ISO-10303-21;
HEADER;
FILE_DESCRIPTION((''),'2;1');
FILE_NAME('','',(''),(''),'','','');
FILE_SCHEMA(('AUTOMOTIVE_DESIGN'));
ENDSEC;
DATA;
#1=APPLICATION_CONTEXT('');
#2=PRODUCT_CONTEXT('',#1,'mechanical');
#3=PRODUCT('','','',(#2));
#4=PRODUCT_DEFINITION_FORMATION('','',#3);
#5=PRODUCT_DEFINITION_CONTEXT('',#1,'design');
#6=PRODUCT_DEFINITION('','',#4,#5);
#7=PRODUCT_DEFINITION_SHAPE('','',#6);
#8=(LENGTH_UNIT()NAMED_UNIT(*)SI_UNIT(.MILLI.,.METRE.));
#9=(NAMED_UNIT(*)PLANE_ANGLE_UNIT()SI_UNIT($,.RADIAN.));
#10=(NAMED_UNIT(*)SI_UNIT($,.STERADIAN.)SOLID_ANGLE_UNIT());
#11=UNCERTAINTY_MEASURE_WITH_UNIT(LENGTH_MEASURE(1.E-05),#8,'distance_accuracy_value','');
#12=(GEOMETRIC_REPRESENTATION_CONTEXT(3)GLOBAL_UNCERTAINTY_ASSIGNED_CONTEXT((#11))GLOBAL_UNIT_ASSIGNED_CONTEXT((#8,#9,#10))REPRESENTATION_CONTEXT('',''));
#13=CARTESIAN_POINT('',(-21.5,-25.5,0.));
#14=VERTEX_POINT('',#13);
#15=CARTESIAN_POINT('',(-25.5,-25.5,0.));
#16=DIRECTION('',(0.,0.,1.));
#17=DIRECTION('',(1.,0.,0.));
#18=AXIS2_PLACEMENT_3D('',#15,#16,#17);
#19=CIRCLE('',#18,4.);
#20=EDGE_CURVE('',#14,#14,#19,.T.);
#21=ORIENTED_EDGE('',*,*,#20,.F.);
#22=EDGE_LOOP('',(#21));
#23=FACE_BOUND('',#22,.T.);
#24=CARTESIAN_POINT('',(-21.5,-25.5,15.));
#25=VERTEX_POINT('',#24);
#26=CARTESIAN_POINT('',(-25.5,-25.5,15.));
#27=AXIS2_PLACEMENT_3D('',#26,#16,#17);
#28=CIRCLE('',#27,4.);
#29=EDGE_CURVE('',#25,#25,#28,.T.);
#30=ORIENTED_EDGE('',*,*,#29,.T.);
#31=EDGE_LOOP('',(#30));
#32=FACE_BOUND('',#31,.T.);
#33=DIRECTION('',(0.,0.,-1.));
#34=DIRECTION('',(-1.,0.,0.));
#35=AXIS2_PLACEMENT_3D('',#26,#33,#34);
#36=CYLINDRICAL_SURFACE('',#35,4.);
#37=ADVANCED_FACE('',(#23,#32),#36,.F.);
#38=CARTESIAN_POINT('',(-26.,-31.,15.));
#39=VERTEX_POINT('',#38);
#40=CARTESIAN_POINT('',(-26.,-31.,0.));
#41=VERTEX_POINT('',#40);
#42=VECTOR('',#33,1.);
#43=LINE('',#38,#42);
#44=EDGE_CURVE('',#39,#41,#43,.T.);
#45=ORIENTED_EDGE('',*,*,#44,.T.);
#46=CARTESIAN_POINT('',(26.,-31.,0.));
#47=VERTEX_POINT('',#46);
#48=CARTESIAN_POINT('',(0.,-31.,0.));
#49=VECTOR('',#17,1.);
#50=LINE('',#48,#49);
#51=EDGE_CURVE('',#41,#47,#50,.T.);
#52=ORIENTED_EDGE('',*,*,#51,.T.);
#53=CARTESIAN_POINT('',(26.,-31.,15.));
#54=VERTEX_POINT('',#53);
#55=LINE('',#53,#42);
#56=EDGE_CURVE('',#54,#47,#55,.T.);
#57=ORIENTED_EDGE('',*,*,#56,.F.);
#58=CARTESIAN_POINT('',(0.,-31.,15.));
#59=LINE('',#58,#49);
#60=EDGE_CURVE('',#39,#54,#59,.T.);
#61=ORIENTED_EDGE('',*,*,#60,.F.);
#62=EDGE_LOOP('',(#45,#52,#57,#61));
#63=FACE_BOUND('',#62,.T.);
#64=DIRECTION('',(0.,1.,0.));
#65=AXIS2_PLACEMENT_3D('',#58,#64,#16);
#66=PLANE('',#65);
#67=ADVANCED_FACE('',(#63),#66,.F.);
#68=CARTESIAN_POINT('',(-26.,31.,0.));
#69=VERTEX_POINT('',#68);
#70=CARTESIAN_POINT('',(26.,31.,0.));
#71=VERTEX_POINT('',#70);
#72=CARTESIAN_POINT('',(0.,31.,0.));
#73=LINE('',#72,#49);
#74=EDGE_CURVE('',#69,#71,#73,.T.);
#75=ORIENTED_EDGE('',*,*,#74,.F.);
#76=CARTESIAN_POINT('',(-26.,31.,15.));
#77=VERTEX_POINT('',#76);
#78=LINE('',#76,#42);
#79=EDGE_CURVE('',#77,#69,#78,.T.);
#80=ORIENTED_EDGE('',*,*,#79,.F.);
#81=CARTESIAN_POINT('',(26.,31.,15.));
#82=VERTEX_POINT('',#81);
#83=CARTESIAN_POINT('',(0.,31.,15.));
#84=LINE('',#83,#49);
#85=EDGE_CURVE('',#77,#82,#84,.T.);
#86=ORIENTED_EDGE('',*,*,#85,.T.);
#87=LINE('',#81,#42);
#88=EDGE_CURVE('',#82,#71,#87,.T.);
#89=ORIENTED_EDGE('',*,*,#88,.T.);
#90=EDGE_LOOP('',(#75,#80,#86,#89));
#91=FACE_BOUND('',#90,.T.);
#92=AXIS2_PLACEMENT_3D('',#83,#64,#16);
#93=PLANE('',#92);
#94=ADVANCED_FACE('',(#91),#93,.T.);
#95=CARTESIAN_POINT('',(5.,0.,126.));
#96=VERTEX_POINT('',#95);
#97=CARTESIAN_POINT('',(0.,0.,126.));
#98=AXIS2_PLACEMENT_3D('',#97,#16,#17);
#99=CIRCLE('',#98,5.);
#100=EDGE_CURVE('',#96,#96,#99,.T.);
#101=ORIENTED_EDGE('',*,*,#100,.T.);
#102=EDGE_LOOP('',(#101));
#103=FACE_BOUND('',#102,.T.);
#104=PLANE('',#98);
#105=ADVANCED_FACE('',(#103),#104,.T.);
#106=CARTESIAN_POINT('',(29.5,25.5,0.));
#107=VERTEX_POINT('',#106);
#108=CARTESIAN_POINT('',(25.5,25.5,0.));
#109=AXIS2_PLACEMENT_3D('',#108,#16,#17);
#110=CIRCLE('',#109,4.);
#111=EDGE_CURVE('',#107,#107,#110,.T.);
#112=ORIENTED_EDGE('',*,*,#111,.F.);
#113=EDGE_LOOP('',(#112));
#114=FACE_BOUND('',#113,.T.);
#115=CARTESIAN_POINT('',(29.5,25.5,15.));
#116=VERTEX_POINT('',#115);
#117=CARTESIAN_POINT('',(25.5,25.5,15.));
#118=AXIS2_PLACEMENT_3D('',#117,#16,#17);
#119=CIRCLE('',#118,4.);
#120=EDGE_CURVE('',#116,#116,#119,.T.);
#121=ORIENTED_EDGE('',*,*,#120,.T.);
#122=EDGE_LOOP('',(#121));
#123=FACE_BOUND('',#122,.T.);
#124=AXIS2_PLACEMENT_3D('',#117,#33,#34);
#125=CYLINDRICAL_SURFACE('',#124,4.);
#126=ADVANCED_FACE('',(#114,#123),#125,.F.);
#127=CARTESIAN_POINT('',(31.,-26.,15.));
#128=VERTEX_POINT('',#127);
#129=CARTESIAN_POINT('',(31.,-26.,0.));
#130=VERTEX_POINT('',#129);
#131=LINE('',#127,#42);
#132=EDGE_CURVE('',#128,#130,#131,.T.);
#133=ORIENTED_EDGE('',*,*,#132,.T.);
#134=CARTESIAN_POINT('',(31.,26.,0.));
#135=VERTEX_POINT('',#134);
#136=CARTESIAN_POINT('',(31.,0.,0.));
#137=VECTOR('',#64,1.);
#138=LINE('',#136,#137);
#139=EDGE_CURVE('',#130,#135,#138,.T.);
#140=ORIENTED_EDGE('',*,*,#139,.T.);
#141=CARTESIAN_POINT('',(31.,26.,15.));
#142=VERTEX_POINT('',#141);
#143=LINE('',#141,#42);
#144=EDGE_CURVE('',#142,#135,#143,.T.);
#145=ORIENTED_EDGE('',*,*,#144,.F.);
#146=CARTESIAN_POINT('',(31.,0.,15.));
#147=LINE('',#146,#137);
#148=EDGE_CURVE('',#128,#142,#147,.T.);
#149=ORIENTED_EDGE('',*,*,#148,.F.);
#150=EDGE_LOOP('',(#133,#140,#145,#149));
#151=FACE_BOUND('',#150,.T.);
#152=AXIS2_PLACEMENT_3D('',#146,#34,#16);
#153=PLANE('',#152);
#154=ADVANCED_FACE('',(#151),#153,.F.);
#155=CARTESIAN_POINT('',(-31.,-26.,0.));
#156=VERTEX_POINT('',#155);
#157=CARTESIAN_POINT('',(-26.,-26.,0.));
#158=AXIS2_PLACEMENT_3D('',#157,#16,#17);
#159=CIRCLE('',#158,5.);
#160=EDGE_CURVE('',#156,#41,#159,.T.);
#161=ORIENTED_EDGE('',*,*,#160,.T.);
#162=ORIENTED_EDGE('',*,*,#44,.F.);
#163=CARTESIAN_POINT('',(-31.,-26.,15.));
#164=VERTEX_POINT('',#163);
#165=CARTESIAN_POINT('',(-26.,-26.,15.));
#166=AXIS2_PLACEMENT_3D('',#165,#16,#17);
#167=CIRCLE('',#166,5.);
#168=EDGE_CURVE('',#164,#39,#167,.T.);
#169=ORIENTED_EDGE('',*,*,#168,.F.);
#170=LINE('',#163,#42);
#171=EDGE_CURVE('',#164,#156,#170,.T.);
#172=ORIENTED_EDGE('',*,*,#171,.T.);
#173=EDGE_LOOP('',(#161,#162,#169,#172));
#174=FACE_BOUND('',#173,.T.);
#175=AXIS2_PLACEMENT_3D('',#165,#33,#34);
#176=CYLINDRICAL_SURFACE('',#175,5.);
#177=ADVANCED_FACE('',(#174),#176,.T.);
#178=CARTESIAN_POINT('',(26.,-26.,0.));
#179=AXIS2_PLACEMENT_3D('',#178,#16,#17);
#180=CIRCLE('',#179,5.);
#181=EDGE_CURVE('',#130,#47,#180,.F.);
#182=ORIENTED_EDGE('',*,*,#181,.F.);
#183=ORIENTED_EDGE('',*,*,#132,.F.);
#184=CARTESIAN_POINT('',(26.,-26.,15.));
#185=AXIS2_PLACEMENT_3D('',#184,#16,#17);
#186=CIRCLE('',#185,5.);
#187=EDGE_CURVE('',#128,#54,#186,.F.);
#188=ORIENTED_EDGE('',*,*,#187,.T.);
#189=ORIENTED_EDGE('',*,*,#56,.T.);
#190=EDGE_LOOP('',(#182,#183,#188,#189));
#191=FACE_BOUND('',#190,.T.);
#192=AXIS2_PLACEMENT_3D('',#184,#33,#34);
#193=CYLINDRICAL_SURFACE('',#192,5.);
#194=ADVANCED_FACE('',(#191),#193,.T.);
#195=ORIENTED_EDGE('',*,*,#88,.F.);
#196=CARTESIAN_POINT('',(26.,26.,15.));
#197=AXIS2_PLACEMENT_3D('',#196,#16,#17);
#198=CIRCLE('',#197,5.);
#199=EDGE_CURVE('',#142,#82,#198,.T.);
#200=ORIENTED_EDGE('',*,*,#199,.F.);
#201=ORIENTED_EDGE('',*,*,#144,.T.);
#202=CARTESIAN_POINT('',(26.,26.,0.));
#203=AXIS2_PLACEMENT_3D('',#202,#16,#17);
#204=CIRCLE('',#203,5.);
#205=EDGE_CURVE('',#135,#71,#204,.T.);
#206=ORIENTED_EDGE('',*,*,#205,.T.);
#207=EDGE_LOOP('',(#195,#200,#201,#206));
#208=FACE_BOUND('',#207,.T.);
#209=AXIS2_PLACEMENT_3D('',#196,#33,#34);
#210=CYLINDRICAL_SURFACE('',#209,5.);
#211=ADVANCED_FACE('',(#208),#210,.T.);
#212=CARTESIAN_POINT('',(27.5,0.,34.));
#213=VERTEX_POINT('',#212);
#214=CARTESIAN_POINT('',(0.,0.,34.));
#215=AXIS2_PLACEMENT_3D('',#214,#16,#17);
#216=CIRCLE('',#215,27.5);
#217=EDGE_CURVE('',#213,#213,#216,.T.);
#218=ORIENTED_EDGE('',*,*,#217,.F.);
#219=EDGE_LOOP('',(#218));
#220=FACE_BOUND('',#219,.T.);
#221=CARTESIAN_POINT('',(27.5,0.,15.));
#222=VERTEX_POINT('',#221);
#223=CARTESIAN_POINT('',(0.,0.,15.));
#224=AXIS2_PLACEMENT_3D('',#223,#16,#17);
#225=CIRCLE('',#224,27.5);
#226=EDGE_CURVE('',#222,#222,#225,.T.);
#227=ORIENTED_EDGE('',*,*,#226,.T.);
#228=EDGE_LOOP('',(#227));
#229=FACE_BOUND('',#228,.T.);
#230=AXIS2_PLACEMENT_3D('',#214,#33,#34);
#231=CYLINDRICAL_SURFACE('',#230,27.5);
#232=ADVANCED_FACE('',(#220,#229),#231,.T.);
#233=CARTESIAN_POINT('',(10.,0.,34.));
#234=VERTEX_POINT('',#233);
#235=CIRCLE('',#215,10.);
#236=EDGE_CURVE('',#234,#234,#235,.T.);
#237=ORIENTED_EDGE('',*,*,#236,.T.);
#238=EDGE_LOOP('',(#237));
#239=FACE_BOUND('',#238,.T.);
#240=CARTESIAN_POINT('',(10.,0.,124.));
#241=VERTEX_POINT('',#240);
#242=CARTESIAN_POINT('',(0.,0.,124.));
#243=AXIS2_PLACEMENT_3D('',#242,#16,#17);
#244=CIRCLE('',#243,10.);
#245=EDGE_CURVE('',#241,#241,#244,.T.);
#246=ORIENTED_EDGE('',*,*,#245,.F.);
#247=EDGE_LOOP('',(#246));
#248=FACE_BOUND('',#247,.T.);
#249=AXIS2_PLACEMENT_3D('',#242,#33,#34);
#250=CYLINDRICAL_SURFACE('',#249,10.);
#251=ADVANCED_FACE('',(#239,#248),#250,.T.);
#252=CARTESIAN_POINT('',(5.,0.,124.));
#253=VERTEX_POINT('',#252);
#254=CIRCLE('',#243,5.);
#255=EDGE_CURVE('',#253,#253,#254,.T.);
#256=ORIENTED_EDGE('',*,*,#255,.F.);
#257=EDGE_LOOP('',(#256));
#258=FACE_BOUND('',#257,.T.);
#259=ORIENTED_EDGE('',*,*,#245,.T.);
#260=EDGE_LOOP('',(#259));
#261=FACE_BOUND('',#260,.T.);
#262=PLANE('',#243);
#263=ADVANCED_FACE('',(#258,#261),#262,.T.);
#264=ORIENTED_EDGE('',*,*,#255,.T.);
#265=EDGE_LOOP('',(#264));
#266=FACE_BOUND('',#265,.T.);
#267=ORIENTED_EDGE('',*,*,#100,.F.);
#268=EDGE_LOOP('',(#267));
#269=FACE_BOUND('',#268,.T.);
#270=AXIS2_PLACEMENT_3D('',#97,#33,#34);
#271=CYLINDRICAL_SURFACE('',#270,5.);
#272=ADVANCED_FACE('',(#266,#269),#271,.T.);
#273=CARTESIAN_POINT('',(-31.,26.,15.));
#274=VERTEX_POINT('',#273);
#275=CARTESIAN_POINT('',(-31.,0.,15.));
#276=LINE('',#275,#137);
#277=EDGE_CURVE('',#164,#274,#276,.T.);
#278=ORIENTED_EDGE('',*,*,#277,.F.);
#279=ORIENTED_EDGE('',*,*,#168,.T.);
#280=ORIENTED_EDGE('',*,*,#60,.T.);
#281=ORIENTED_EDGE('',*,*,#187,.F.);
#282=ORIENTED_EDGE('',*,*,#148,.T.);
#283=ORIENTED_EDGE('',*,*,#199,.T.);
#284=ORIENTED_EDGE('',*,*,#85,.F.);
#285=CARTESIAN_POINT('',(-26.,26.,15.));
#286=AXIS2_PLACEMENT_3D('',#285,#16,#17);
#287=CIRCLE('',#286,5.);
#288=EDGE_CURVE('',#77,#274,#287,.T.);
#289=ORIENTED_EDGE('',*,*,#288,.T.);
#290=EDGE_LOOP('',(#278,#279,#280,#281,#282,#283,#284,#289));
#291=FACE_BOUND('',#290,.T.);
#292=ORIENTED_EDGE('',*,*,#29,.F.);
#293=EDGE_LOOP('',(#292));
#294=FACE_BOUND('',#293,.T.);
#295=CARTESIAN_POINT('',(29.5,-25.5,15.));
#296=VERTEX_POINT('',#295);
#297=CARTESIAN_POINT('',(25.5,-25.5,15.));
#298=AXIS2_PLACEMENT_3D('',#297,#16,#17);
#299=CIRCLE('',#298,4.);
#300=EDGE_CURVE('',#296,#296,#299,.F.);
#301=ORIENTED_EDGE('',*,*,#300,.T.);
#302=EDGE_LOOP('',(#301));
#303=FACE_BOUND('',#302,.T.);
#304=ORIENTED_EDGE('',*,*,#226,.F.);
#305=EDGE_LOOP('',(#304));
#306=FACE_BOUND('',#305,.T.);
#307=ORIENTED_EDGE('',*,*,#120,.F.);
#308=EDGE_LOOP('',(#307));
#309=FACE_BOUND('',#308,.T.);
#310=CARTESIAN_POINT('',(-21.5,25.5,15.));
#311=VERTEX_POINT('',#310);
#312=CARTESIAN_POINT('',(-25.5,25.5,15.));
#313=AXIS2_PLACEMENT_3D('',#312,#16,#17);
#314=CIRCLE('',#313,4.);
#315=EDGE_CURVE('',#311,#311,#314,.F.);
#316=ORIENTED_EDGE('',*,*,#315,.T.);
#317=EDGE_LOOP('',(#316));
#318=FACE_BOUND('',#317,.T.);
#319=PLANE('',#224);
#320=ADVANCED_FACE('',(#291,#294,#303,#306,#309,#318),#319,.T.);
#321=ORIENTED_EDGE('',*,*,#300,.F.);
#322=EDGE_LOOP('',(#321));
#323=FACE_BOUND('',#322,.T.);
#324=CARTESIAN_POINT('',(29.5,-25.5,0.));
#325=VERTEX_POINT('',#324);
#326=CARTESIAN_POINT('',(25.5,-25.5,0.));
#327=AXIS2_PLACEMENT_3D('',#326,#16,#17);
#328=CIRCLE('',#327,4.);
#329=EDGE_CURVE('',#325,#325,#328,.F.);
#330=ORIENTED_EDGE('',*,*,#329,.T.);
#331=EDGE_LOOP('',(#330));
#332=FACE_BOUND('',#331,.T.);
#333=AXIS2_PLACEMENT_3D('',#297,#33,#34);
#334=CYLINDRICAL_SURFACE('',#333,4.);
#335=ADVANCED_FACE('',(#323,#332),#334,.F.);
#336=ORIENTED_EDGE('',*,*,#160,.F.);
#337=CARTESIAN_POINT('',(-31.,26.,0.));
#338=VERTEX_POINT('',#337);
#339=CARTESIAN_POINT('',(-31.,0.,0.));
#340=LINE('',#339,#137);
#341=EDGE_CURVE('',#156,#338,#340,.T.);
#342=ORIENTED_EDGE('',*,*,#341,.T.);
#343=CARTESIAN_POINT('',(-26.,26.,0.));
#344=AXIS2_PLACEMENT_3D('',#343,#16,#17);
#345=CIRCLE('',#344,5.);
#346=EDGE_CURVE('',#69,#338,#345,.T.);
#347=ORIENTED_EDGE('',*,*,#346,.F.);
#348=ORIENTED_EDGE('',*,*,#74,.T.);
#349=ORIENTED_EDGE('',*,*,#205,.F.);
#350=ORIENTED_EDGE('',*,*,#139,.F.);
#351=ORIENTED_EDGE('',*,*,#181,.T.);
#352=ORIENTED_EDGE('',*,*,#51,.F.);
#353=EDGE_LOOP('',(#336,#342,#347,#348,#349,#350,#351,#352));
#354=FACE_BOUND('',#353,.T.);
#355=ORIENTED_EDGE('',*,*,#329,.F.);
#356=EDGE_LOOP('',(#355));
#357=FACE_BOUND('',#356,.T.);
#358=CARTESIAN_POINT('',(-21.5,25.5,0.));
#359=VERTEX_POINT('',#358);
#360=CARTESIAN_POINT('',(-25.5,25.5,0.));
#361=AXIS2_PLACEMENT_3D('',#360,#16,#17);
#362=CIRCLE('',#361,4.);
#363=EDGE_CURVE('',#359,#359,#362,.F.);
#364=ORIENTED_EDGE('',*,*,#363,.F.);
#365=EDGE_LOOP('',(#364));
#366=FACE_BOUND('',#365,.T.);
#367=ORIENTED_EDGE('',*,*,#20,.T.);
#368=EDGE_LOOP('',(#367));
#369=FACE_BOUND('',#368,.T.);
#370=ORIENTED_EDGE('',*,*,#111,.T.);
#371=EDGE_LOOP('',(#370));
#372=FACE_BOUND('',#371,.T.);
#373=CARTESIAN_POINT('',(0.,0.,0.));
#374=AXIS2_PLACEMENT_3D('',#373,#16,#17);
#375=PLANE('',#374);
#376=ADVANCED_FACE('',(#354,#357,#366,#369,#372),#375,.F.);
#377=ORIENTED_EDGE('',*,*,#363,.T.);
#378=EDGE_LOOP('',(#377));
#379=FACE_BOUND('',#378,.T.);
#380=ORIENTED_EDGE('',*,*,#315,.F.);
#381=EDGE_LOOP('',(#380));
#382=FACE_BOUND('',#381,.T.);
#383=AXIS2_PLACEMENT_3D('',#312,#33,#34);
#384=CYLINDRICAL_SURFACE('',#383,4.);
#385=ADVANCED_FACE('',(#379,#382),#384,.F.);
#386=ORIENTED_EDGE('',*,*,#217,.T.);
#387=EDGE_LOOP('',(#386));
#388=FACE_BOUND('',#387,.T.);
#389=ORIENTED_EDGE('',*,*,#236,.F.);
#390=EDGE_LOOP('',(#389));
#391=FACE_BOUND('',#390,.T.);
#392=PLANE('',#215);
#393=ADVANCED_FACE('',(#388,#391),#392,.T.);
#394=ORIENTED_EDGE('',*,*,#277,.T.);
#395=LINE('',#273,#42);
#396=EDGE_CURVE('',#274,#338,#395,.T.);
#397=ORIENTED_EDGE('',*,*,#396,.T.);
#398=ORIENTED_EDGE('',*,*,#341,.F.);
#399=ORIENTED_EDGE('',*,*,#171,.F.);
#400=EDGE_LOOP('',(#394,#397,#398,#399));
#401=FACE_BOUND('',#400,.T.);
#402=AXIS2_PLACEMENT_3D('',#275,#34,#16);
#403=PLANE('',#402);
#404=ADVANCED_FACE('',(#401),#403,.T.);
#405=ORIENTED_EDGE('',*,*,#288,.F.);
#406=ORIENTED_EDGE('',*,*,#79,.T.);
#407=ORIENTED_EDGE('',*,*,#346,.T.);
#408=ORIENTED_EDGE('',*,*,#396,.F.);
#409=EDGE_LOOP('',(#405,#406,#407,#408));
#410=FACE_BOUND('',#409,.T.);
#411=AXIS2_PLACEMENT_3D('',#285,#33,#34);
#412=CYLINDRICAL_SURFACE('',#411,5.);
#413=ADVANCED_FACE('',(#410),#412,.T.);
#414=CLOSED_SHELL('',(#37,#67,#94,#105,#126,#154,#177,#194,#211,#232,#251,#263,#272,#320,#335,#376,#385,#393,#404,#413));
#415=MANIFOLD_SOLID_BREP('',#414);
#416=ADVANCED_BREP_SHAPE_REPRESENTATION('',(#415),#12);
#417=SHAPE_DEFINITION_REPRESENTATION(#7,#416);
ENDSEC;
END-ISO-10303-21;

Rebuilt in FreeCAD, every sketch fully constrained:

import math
import FreeCAD as App
import Part
import Sketcher
from FreeCAD import Vector

doc = App.newDocument("Part")
body = doc.addObject("PartDesign::Body", "Body")

sketch1 = body.newObject("Sketcher::SketchObject", "Sketch")
sketch1.AttachmentSupport = (doc.getObject("XY_Plane"), [""])
sketch1.MapMode = "FlatFace"
sketch1.addGeometry([
    Part.LineSegment(Vector(26, 31, 0), Vector(-26, 31, 0)),
    Part.ArcOfCircle(Part.Circle(Vector(-26, 26, 0), Vector(0, 0, 1), 5), math.radians(90), math.radians(180)),
    Part.LineSegment(Vector(-31, 26, 0), Vector(-31, -26, 0)),
    Part.ArcOfCircle(Part.Circle(Vector(-26, -26, 0), Vector(0, 0, 1), 5), math.radians(180), math.radians(270)),
    Part.LineSegment(Vector(-26, -31, 0), Vector(26, -31, 0)),
    Part.ArcOfCircle(Part.Circle(Vector(26, -26, 0), Vector(0, 0, 1), 5), math.radians(-90), math.radians(0)),
    Part.LineSegment(Vector(31, -26, 0), Vector(31, 26, 0)),
    Part.ArcOfCircle(Part.Circle(Vector(26, 26, 0), Vector(0, 0, 1), 5), math.radians(0), math.radians(90)),
    Part.Circle(Vector(25.5, -25.5, 0), Vector(0, 0, 1), 4),
    Part.Circle(Vector(-25.5, -25.5, 0), Vector(0, 0, 1), 4),
    Part.Circle(Vector(25.5, 25.5, 0), Vector(0, 0, 1), 4),
    Part.Circle(Vector(0, 0, 0), Vector(0, 0, 1), 27.5),
    Part.Circle(Vector(-25.5, 25.5, 0), Vector(0, 0, 1), 4),
], False)
sketch1.addConstraint([
    Sketcher.Constraint("Tangent", 0, 2, 1, 1),
    Sketcher.Constraint("Tangent", 1, 2, 2, 1),
    Sketcher.Constraint("Tangent", 2, 2, 3, 1),
    Sketcher.Constraint("Tangent", 3, 2, 4, 1),
    Sketcher.Constraint("Tangent", 4, 2, 5, 1),
    Sketcher.Constraint("Tangent", 5, 2, 6, 1),
    Sketcher.Constraint("Tangent", 6, 2, 7, 1),
    Sketcher.Constraint("Tangent", 7, 2, 0, 1),
    Sketcher.Constraint("Horizontal", 0),
    Sketcher.Constraint("Vertical", 2),
    Sketcher.Constraint("Horizontal", 4),
    Sketcher.Constraint("Vertical", 6),
    Sketcher.Constraint("Coincident", 11, 3, -1, 1),
    Sketcher.Constraint("Equal", 1, 3),
    Sketcher.Constraint("Equal", 3, 5),
    Sketcher.Constraint("Equal", 5, 7),
    Sketcher.Constraint("Equal", 8, 9),
    Sketcher.Constraint("Equal", 9, 10),
    Sketcher.Constraint("Equal", 10, 12),
    Sketcher.Constraint("Symmetric", 1, 3, 5, 3, -1, 1),
    Sketcher.Constraint("Symmetric", 9, 3, 10, 3, -1, 1),
    Sketcher.Constraint("Symmetric", 8, 3, 12, 3, -1, 1),
    Sketcher.Constraint("Symmetric", 8, 3, 9, 3, -2),
    Sketcher.Constraint("Equal", 4, 2),
    Sketcher.Constraint("Diameter", 8, 8.0),
    Sketcher.Constraint("Diameter", 11, 55.0),
    Sketcher.Constraint("Radius", 1, 5.0),
    Sketcher.Constraint("DistanceX", 0, 2, 0, 1, 52.0),
    Sketcher.Constraint("DistanceX", 9, 3, 8, 3, 51.0),
    Sketcher.Constraint("DistanceY", 8, 3, 10, 3, 51.0),
])
pad1 = body.newObject("PartDesign::Pad", "Pad")
pad1.Profile = sketch1
pad1.Length = 15

sketch2 = body.newObject("Sketcher::SketchObject", "Sketch001")
sketch2.AttachmentSupport = (doc.getObject("XY_Plane"), [""])
sketch2.MapMode = "FlatFace"
sketch2.addGeometry([
    Part.Circle(Vector(0, 0, 0), Vector(0, 0, 1), 28),
    Part.Circle(Vector(0, 0, 0), Vector(0, 0, 1), 10),
], False)
sketch2.addConstraint([
    Sketcher.Constraint("Coincident", 0, 3, -1, 1),
    Sketcher.Constraint("Coincident", 1, 3, -1, 1),
    Sketcher.Constraint("Diameter", 0, 55.0),
    Sketcher.Constraint("Diameter", 1, 20.0),
])
pad2 = body.newObject("PartDesign::Pad", "Pad001")
pad2.Profile = sketch2
pad2.Length = 34

sketch3 = body.newObject("Sketcher::SketchObject", "Sketch002")
sketch3.AttachmentSupport = (doc.getObject("XY_Plane"), [""])
sketch3.MapMode = "FlatFace"
sketch3.addGeometry(Part.Circle(Vector(0, 0, 0), Vector(0, 0, 1), 10), False)
sketch3.addConstraint([
    Sketcher.Constraint("Coincident", 0, 3, -1, 1),
    Sketcher.Constraint("Diameter", 0, 20.0),
])
pad3 = body.newObject("PartDesign::Pad", "Pad002")
pad3.Profile = sketch3
pad3.Length = 124

sketch4 = body.newObject("Sketcher::SketchObject", "Sketch003")
sketch4.AttachmentSupport = (doc.getObject("XY_Plane"), [""])
sketch4.MapMode = "FlatFace"
sketch4.AttachmentOffset = App.Placement(Vector(0, 0, 124), App.Rotation())
sketch4.addGeometry(Part.Circle(Vector(0, 0, 0), Vector(0, 0, 1), 5), False)
sketch4.addConstraint([
    Sketcher.Constraint("Coincident", 0, 3, -1, 1),
    Sketcher.Constraint("Diameter", 0, 10.0),
])
pad4 = body.newObject("PartDesign::Pad", "Pad003")
pad4.Profile = sketch4
pad4.Length = 2

doc.recompute()
